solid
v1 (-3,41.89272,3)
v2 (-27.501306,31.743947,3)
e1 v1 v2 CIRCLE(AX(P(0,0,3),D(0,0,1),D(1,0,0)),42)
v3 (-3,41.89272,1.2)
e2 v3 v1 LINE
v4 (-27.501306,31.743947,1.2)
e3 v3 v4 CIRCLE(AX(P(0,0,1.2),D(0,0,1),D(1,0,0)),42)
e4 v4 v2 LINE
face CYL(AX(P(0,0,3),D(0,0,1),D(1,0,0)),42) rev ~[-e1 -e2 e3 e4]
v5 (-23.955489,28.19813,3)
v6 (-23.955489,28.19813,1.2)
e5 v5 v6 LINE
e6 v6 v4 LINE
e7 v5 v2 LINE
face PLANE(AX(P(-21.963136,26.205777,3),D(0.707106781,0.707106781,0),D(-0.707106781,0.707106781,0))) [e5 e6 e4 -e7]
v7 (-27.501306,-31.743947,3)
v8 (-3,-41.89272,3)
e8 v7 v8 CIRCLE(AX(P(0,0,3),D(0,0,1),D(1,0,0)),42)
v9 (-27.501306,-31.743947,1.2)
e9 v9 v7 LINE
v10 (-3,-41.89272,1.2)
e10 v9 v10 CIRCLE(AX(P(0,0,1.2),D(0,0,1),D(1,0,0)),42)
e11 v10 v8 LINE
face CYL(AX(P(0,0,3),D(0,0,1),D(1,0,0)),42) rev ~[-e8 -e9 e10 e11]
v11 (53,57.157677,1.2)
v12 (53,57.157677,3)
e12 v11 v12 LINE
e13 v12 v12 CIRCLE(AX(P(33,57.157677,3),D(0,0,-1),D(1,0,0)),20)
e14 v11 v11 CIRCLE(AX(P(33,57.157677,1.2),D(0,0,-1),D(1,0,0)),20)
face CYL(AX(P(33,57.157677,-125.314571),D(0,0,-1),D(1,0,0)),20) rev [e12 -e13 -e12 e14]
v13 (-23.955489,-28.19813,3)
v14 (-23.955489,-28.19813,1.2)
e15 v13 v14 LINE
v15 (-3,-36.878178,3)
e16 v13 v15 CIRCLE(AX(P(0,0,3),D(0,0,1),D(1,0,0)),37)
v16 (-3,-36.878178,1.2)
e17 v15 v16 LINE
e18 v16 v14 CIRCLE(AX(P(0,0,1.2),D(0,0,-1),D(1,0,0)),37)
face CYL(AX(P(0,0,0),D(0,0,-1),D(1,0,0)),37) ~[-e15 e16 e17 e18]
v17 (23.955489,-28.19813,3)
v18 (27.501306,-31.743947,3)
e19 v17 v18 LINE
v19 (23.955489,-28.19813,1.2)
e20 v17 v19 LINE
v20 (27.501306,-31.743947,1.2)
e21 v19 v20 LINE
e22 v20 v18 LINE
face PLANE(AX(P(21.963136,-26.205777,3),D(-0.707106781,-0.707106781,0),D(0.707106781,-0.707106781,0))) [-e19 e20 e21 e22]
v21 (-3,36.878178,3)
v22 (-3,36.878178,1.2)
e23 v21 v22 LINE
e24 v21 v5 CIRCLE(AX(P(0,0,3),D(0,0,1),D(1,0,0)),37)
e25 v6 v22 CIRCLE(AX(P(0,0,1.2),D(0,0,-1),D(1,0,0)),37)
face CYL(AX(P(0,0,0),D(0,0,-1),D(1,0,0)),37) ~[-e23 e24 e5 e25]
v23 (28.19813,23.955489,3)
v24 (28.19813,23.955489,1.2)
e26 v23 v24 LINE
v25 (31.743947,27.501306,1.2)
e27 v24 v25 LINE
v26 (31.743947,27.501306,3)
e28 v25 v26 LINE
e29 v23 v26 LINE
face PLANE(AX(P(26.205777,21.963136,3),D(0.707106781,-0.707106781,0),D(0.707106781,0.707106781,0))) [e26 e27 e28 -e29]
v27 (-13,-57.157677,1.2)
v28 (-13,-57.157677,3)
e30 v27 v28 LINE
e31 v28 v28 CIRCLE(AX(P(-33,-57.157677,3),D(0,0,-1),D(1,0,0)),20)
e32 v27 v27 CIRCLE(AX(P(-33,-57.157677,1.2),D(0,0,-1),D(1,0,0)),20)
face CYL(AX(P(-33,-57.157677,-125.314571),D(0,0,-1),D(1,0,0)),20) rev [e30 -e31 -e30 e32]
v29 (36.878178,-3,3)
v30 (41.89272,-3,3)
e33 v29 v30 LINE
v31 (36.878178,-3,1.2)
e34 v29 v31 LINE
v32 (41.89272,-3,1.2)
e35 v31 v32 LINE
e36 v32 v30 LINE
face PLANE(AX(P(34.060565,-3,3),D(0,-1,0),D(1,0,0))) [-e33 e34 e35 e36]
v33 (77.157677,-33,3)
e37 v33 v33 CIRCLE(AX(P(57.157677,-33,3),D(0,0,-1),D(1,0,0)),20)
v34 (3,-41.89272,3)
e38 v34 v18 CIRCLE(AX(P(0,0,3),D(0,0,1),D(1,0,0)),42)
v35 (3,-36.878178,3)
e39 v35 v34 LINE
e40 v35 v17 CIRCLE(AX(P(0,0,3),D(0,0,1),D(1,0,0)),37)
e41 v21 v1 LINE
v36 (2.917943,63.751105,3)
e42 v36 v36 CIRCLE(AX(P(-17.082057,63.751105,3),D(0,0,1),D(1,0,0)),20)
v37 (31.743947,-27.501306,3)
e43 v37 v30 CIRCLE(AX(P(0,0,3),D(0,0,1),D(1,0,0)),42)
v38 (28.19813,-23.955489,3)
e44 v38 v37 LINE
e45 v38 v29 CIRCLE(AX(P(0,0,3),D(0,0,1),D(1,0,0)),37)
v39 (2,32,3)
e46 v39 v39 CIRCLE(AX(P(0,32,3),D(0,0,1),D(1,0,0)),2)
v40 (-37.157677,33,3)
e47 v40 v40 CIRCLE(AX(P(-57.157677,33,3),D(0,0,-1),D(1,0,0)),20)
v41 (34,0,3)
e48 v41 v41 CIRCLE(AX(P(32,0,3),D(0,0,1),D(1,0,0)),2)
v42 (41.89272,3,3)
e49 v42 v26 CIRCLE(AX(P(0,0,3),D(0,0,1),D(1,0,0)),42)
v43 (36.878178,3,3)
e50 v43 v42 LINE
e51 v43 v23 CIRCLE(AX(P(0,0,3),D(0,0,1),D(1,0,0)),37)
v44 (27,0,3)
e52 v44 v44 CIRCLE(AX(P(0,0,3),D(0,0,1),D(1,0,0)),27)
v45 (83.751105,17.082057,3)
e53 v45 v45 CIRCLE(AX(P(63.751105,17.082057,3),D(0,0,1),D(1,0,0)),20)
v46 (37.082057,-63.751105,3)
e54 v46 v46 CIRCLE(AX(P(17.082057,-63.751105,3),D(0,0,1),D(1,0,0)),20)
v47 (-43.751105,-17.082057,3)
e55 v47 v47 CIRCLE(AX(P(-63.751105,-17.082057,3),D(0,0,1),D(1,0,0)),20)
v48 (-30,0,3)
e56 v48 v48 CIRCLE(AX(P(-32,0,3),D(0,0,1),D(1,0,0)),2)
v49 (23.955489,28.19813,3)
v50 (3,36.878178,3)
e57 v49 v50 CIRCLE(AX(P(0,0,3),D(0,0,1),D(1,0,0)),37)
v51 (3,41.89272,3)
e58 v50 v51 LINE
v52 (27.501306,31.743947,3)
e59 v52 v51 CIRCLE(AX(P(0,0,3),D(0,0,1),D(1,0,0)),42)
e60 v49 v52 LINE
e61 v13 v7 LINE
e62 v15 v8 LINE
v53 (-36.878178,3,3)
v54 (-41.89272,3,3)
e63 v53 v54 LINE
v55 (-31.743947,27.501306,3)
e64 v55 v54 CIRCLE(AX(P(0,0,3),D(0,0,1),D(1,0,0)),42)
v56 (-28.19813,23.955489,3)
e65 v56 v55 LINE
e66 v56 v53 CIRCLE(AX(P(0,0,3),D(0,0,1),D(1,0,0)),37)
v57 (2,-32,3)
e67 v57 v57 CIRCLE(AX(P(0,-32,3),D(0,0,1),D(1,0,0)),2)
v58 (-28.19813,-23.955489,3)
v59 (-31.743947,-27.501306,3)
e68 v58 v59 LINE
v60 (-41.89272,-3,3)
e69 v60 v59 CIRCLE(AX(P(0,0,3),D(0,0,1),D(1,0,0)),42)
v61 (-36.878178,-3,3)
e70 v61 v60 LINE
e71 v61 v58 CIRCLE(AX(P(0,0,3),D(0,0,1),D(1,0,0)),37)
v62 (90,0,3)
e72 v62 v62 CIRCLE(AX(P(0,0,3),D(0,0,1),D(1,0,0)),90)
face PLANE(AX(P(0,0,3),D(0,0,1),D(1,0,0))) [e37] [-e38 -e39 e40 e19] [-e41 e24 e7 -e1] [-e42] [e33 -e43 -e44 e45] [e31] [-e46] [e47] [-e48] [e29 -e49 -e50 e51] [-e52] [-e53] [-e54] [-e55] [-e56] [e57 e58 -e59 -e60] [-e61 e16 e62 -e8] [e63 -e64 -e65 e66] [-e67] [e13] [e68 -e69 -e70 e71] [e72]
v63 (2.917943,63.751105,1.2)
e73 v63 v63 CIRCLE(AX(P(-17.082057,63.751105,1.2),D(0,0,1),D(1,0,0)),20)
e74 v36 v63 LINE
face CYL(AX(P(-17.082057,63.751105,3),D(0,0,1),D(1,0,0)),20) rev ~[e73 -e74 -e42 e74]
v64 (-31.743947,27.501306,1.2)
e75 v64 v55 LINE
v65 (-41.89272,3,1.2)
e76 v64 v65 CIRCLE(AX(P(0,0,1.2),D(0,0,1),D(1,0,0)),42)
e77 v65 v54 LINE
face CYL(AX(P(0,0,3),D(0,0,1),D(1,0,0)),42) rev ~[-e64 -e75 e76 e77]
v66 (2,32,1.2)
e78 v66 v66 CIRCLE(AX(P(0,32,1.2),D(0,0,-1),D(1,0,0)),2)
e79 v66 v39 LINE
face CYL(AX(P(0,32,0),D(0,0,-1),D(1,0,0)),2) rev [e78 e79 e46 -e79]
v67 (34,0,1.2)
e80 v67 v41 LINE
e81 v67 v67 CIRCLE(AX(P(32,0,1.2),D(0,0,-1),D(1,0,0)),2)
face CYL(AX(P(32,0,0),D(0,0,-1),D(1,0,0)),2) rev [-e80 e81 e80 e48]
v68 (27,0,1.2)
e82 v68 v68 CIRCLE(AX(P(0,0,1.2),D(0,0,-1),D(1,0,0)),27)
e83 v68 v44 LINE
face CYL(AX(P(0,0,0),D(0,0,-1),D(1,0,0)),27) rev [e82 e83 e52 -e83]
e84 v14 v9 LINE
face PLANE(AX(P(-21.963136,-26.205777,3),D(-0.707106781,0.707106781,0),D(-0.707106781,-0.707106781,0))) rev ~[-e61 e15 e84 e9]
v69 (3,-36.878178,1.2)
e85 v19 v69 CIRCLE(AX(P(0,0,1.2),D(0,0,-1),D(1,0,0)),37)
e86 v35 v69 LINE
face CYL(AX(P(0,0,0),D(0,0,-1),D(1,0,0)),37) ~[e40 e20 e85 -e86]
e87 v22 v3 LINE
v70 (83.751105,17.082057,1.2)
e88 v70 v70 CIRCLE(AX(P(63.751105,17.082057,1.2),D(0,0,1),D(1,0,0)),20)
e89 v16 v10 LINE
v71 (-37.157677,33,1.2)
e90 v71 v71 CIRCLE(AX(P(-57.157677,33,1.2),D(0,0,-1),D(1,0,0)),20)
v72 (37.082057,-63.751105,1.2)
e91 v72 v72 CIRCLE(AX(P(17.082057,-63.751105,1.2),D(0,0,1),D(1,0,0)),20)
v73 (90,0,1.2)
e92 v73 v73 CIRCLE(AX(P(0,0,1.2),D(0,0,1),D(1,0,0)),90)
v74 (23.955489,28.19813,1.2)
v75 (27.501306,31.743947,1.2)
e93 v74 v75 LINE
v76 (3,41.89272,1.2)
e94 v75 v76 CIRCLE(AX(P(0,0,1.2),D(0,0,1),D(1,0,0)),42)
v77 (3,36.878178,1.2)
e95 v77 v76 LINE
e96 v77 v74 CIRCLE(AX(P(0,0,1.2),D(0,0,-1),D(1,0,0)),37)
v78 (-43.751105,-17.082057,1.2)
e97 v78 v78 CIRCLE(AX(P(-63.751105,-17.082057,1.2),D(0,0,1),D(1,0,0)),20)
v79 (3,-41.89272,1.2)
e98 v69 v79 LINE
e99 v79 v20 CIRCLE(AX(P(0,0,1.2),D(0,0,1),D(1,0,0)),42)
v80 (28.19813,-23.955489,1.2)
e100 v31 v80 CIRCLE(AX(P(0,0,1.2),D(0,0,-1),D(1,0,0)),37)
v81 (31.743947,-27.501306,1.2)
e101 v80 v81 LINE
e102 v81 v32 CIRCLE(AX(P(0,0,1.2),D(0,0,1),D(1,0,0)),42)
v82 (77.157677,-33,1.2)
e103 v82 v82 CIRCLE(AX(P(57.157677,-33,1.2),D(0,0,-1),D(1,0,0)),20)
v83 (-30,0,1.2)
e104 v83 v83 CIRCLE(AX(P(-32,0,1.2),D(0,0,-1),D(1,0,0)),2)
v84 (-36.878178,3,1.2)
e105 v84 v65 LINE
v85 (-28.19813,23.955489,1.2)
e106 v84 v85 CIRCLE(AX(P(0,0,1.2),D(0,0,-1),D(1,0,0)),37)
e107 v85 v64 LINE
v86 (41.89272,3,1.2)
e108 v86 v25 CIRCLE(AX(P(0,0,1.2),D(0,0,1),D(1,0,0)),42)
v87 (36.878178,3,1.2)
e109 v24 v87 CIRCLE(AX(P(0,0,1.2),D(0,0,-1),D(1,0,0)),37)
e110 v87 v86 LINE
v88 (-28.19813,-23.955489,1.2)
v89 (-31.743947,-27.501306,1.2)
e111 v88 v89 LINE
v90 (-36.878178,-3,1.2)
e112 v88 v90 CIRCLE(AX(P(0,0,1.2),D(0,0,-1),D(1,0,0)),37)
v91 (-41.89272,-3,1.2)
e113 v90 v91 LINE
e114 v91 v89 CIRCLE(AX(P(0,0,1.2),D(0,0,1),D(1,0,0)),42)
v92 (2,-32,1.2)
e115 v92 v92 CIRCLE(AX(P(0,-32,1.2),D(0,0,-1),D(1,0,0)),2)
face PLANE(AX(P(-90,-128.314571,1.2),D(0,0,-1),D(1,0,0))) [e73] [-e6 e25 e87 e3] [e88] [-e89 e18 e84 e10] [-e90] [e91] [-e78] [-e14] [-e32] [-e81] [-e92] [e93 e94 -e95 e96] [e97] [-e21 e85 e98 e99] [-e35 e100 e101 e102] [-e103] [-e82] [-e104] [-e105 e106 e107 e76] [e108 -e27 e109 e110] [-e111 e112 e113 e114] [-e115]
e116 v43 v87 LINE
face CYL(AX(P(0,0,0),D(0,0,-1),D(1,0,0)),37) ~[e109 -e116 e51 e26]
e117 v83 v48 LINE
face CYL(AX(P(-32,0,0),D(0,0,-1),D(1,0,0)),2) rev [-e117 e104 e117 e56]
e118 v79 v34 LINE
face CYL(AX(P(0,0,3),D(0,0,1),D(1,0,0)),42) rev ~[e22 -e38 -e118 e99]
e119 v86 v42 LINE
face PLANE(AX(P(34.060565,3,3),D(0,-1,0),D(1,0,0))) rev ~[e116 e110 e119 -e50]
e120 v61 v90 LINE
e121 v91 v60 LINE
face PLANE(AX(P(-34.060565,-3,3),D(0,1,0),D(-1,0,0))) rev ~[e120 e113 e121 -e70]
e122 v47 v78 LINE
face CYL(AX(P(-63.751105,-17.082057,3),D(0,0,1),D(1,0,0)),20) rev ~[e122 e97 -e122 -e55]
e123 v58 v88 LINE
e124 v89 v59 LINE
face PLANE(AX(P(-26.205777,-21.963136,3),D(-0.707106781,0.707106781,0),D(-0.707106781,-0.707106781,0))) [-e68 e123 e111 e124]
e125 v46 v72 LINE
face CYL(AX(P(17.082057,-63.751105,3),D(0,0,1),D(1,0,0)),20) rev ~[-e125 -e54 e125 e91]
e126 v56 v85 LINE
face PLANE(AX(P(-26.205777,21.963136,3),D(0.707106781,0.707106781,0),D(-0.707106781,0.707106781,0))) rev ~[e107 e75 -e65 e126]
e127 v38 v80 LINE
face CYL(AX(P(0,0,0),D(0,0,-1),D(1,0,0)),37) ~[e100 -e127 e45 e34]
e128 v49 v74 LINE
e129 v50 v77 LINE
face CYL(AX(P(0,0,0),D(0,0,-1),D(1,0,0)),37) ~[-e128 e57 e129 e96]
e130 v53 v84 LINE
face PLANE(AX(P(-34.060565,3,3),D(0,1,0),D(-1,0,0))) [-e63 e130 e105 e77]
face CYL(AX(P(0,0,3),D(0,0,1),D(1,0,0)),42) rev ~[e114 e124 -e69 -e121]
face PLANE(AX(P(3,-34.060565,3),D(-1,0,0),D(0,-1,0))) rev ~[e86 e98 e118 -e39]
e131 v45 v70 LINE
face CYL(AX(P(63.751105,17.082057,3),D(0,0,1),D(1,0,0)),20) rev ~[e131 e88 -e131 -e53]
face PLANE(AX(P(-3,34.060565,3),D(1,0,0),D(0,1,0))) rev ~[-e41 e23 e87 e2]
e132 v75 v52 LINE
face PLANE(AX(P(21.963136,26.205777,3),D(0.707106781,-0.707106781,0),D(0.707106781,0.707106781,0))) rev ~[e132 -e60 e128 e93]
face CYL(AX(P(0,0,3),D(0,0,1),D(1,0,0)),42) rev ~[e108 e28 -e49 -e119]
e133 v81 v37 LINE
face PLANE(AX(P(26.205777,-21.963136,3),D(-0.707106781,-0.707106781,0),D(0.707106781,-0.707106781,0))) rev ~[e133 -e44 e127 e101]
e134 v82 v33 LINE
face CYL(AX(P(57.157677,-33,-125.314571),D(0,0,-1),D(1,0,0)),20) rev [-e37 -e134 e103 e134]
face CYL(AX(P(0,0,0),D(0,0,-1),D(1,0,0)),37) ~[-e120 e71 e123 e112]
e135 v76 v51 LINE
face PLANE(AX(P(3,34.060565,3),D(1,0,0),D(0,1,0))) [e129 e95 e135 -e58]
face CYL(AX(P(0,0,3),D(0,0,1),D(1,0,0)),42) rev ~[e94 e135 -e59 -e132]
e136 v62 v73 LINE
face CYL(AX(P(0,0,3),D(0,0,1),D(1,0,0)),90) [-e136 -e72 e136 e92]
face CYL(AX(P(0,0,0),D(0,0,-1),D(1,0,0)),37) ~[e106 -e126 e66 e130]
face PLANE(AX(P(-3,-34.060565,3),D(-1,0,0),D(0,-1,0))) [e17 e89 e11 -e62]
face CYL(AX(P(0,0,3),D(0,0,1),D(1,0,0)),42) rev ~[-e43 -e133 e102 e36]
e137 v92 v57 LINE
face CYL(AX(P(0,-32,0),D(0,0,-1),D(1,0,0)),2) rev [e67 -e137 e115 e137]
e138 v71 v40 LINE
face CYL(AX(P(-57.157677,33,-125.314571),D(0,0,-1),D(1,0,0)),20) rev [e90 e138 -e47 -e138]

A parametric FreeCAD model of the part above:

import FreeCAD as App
import Part
import Sketcher


def add_polygon(sketch, points):
    """Adds a closed chain of lines whose ends are joined by coincident constraints."""
    first, n = sketch.GeometryCount, len(points)
    for a, b in zip(points, points[1:] + points[:1]):
        sketch.addGeometry(Part.LineSegment(App.Vector(*a, 0), App.Vector(*b, 0)), False)
    for i in range(n):
        sketch.addConstraint(Sketcher.Constraint("Coincident", first + i, 2, first + (i + 1) % n, 1))

doc = App.newDocument("Part")
body = doc.addObject("PartDesign::Body", "Body")

sketch1 = body.newObject("Sketcher::SketchObject", "Sketch")
sketch1.AttachmentSupport = (doc.getObject("XY_Plane"), [""])
sketch1.MapMode = "FlatFace"
sketch1.addGeometry([
    Part.Circle(App.Vector(0, 0, 0), App.Vector(0, 0, 1), 37),
    Part.Circle(App.Vector(0, -32, 0), App.Vector(0, 0, 1), 2),
    Part.Circle(App.Vector(-32, 0, 0), App.Vector(0, 0, 1), 2),
    Part.Circle(App.Vector(0, 0, 0), App.Vector(0, 0, 1), 27),
    Part.Circle(App.Vector(32, 0, 0), App.Vector(0, 0, 1), 2),
    Part.Circle(App.Vector(0, 32, 0), App.Vector(0, 0, 1), 2),
], False)
sketch1.addConstraint([
    Sketcher.Constraint("Coincident", 0, 3, -1, 1),
    Sketcher.Constraint("Coincident", 3, 3, -1, 1),
    Sketcher.Constraint("Equal", 1, 2),
    Sketcher.Constraint("Equal", 2, 4),
    Sketcher.Constraint("Equal", 4, 5),
    Sketcher.Constraint("Symmetric", 2, 3, 4, 3, -1, 1),
    Sketcher.Constraint("Symmetric", 1, 3, 5, 3, -1, 1),
    Sketcher.Constraint("PointOnObject", 1, 3, -2),
    Sketcher.Constraint("PointOnObject", 2, 3, -1),
    Sketcher.Constraint("Diameter", 0, 74.0),
    Sketcher.Constraint("Diameter", 1, 4.0),
    Sketcher.Constraint("Diameter", 3, 54.0),
    Sketcher.Constraint("DistanceY", 1, 3, -1, 1, 32.0),
    Sketcher.Constraint("DistanceX", 2, 3, -1, 1, 32.0),
])
pad1 = body.newObject("PartDesign::Pad", "Pad")
pad1.Profile = sketch1
pad1.Length = 3
body2 = doc.addObject("PartDesign::Body", "Body001")

sketch2 = body2.newObject("Sketcher::SketchObject", "Sketch001")
sketch2.AttachmentSupport = (doc.getObject("XY_Plane001"), [""])
sketch2.MapMode = "FlatFace"
sketch2.AttachmentOffset = App.Placement(App.Vector(0, 0, 3), App.Rotation())
sketch2.addGeometry([
    Part.Circle(App.Vector(0, 0, 0), App.Vector(0, 0, 1), 90),
    Part.Circle(App.Vector(-64, -17, 0), App.Vector(0, 0, 1), 20),
    Part.Circle(App.Vector(17, -64, 0), App.Vector(0, 0, 1), 20),
    Part.Circle(App.Vector(-17, 64, 0), App.Vector(0, 0, 1), 20),
    Part.Circle(App.Vector(0, 0, 0), App.Vector(0, 0, 1), 42),
    Part.Circle(App.Vector(64, 17, 0), App.Vector(0, 0, 1), 20),
], False)
sketch2.addConstraint([
    Sketcher.Constraint("Coincident", 0, 3, -1, 1),
    Sketcher.Constraint("Coincident", 4, 3, -1, 1),
    Sketcher.Constraint("Equal", 1, 2),
    Sketcher.Constraint("Equal", 2, 3),
    Sketcher.Constraint("Equal", 3, 5),
    Sketcher.Constraint("Symmetric", 2, 3, 3, 3, -1, 1),
    Sketcher.Constraint("Symmetric", 1, 3, 5, 3, -1, 1),
    Sketcher.Constraint("Diameter", 0, 180.0),
    Sketcher.Constraint("Diameter", 1, 40.0),
    Sketcher.Constraint("Diameter", 4, 84.0),
    Sketcher.Constraint("DistanceX", 1, 3, 2, 3, 80.833162),
    Sketcher.Constraint("DistanceY", 1, 3, 3, 3, 80.833162),
    Sketcher.Constraint("DistanceY", 2, 3, 3, 3, 127.502209),
    Sketcher.Constraint("DistanceX", 1, 3, 5, 3, 127.502209),
])
pad2 = body2.newObject("PartDesign::Pad", "Pad001")
pad2.Profile = sketch2
pad2.Length = 3
pad2.Reversed = True
body.AllowCompound = True
doc.recompute()

boolean = body.newObject("PartDesign::Boolean", "Boolean")
boolean.Type = "Fuse"
boolean.addObjects([body2])

sketch3 = body.newObject("Sketcher::SketchObject", "Sketch002")
sketch3.AttachmentSupport = (doc.getObject("XY_Plane"), [""])
sketch3.MapMode = "FlatFace"
sketch3.AttachmentOffset = App.Placement(App.Vector(0, 0, 3), App.Rotation())
add_polygon(sketch3, [(-34, 3), (-43, 3), (-43, -3), (-34, -3)])
add_polygon(sketch3, [(-22, 26), (-28, 33), (-33, 28), (-26, 22)])
add_polygon(sketch3, [(3, 34), (3, 43), (-3, 43), (-3, 34)])
add_polygon(sketch3, [(26, 22), (33, 28), (28, 33), (22, 26)])
add_polygon(sketch3, [(34, -3), (43, -3), (43, 3), (34, 3)])
add_polygon(sketch3, [(22, -26), (28, -33), (33, -28), (26, -22)])
add_polygon(sketch3, [(-3, -34), (-3, -43), (3, -43), (3, -34)])
add_polygon(sketch3, [(-26, -22), (-33, -28), (-28, -33), (-22, -26)])
sketch3.addConstraint([
    Sketcher.Constraint("Horizontal", 0),
    Sketcher.Constraint("Vertical", 1),
    Sketcher.Constraint("Horizontal", 2),
    Sketcher.Constraint("Vertical", 3),
    Sketcher.Constraint("Vertical", 8),
    Sketcher.Constraint("Horizontal", 9),
    Sketcher.Constraint("Vertical", 10),
    Sketcher.Constraint("Horizontal", 11),
    Sketcher.Constraint("Horizontal", 16),
    Sketcher.Constraint("Vertical", 17),
    Sketcher.Constraint("Horizontal", 18),
    Sketcher.Constraint("Vertical", 19),
    Sketcher.Constraint("Vertical", 24),
    Sketcher.Constraint("Horizontal", 25),
    Sketcher.Constraint("Vertical", 26),
    Sketcher.Constraint("Horizontal", 27),
    Sketcher.Constraint("Symmetric", 0, 2, 16, 2, -1, 1),
    Sketcher.Constraint("Symmetric", 2, 2, 18, 2, -1, 1),
    Sketcher.Constraint("Symmetric", 4, 2, 20, 2, -1, 1),
    Sketcher.Constraint("Symmetric", 5, 2, 21, 2, -1, 1),
    Sketcher.Constraint("Symmetric", 6, 2, 22, 2, -1, 1),
    Sketcher.Constraint("Symmetric", 7, 2, 23, 2, -1, 1),
    Sketcher.Constraint("Symmetric", 8, 2, 24, 2, -1, 1),
    Sketcher.Constraint("Symmetric", 10, 2, 26, 2, -1, 1),
    Sketcher.Constraint("Symmetric", 12, 2, 28, 2, -1, 1),
    Sketcher.Constraint("Symmetric", 13, 2, 29, 2, -1, 1),
    Sketcher.Constraint("Symmetric", 14, 2, 30, 2, -1, 1),
    Sketcher.Constraint("Symmetric", 15, 2, 31, 2, -1, 1),
    Sketcher.Constraint("Symmetric", 5, 2, 12, 2, -2),
    Sketcher.Constraint("Symmetric", 4, 2, 13, 2, -2),
    Sketcher.Constraint("Symmetric", 7, 2, 14, 2, -2),
    Sketcher.Constraint("Symmetric", 6, 2, 15, 2, -2),
    Sketcher.Constraint("Perpendicular", 4, 5),
    Sketcher.Constraint("Perpendicular", 5, 6),
    Sketcher.Constraint("Perpendicular", 6, 7),
    Sketcher.Constraint("Parallel", 7, 12),
    Sketcher.Constraint("Horizontal", 2, 2, 16, 2),
    Sketcher.Constraint("Vertical", 10, 2, 24, 2),
    Sketcher.Constraint("Equal", 27, 1),
    Sketcher.Constraint("Equal", 18, 8),
    Sketcher.Constraint("DistanceX", 9, 2, 9, 1, 6.0),
    Sketcher.Constraint("Distance", 5, 6.0),
    Sketcher.Constraint("DistanceY", 6, 2, 4, 2, 10.708599),
    Sketcher.Constraint("DistanceX", 0, 2, 0, 1, 9.144246),
    Sketcher.Constraint("DistanceX", 0, 2, -1, 1, 43.204811),
    Sketcher.Constraint("DistanceY", -1, 1, 8, 2, 43.204811),
    Sketcher.Constraint("DistanceX", 3, 2, 4, 2, 5.63147),
    Sketcher.Constraint("DistanceY", 7, 2, 10, 2, 7.854788),
])
pad3 = body.newObject("PartDesign::Pad", "Pad002")
pad3.Profile = sketch3
pad3.Length = 3
pad3.Reversed = True

sketch4 = body.newObject("Sketcher::SketchObject", "Sketch003")
sketch4.AttachmentSupport = (doc.getObject("XY_Plane"), [""])
sketch4.MapMode = "FlatFace"
sketch4.AttachmentOffset = App.Placement(App.Vector(0, 0, 3), App.Rotation())
sketch4.addGeometry([
    Part.Circle(App.Vector(-57, 33, 0), App.Vector(0, 0, 1), 20),
    Part.Circle(App.Vector(33, 57, 0), App.Vector(0, 0, 1), 20),
    Part.Circle(App.Vector(57, -33, 0), App.Vector(0, 0, 1), 20),
    Part.Circle(App.Vector(-33, -57, 0), App.Vector(0, 0, 1), 20),
], False)
sketch4.addConstraint([
    Sketcher.Constraint("Equal", 0, 1),
    Sketcher.Constraint("Equal", 1, 2),
    Sketcher.Constraint("Equal", 2, 3),
    Sketcher.Constraint("Symmetric", 0, 3, 2, 3, -1, 1),
    Sketcher.Constraint("Symmetric", 1, 3, 3, 3, -1, 1),
    Sketcher.Constraint("Diameter", 0, 40.0),
    Sketcher.Constraint("DistanceY", -1, 1, 0, 3, 33.0),
    Sketcher.Constraint("DistanceX", -1, 1, 1, 3, 33.0),
    Sketcher.Constraint("DistanceX", 0, 3, -1, 1, 57.157677),
    Sketcher.Constraint("DistanceY", -1, 1, 1, 3, 57.157677),
])
pocket1 = body.newObject("PartDesign::Pocket", "Pocket")
pocket1.Profile = sketch4
pocket1.Type = "ThroughAll"
pocket1.Midplane = True

sketch5 = body.newObject("Sketcher::SketchObject", "Sketch004")
sketch5.AttachmentSupport = (doc.getObject("XZ_Plane"), [""])
sketch5.MapMode = "FlatFace"
add_polygon(sketch5, [(100, -28), (-90, -7), (-90, 1), (96, 1)])
sketch5.addConstraint([
    Sketcher.Constraint("Vertical", 1),
    Sketcher.Constraint("Horizontal", 2),
    Sketcher.Constraint("DistanceX", 0, 2, -1, 1, 90.0),
    Sketcher.Constraint("DistanceY", -1, 1, 1, 2, 1.2),
    Sketcher.Constraint("Distance", 3, 29.720992),
    Sketcher.Constraint("DistanceX", 2, 1, 2, 2, 186.195464),
    Sketcher.Constraint("DistanceY", 1, 1, 1, 2, 8.569194),
    Sketcher.Constraint("DistanceY", 3, 2, -1, 1, 28.225781),
])
pocket2 = body.newObject("PartDesign::Pocket", "Pocket001")
pocket2.Profile = sketch5
pocket2.Type = "ThroughAll"
pocket2.Midplane = True

doc.recompute()
